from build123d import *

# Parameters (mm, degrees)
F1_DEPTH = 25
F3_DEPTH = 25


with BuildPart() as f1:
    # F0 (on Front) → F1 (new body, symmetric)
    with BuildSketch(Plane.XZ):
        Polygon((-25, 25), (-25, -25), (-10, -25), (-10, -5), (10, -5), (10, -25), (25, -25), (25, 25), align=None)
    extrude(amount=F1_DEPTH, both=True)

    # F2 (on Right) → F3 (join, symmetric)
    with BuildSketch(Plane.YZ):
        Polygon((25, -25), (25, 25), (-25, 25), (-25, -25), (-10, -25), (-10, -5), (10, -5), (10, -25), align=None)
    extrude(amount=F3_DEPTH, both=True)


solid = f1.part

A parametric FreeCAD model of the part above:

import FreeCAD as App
import Part
import Sketcher
Q = App.Units.Quantity


def add_polygon(sketch, points):
    """Adds a closed chain of lines whose ends are joined by coincident constraints."""
    first, n = sketch.GeometryCount, len(points)
    for a, b in zip(points, points[1:] + points[:1]):
        sketch.addGeometry(Part.LineSegment(App.Vector(*a, 0), App.Vector(*b, 0)), False)
    for i in range(n):
        sketch.addConstraint(Sketcher.Constraint("Coincident", first + i, 2, first + (i + 1) % n, 1))

doc = App.newDocument("Part")
body = doc.addObject("PartDesign::Body", "Body")

sketch1 = body.newObject("Sketcher::SketchObject", "Sketch")
sketch1.AttachmentSupport = (doc.getObject("XZ_Plane"), [""])
sketch1.MapMode = "FlatFace"
add_polygon(sketch1, [(-25, 25), (-25, -25), (-10, -25), (-10, -5), (10, -5), (10, -25), (25, -25), (25, 25)])
sketch1.addConstraint(Sketcher.Constraint("Vertical", 0))
sketch1.addConstraint(Sketcher.Constraint("Horizontal", 1))
sketch1.addConstraint(Sketcher.Constraint("Vertical", 2))
sketch1.addConstraint(Sketcher.Constraint("Horizontal", 3))
sketch1.addConstraint(Sketcher.Constraint("Vertical", 4))
sketch1.addConstraint(Sketcher.Constraint("Horizontal", 5))
sketch1.addConstraint(Sketcher.Constraint("Vertical", 6))
sketch1.addConstraint(Sketcher.Constraint("Horizontal", 7))
sketch1.addConstraint(Sketcher.Constraint("Symmetric", 0, 2, 6, 2, -1, 1))
sketch1.addConstraint(Sketcher.Constraint("Symmetric", 1, 2, 4, 2, -2))
sketch1.addConstraint(Sketcher.Constraint("Equal", 7, 0))
sketch1.addConstraint(Sketcher.Constraint("Equal", 3, 2))
sketch1.addConstraint(Sketcher.Constraint("DistanceX", 1, 1, 1, 2, Q("15 mm")))
sketch1.addConstraint(Sketcher.Constraint("DistanceX", 3, 1, 3, 2, Q("20 mm")))
pad1 = body.newObject("PartDesign::Pad", "Pad")
pad1.Profile = sketch1
pad1.Length = 50
pad1.Midplane = True

sketch2 = body.newObject("Sketcher::SketchObject", "Sketch001")
sketch2.AttachmentSupport = (doc.getObject("YZ_Plane"), [""])
sketch2.MapMode = "FlatFace"
add_polygon(sketch2, [(25, -25), (25, 25), (-25, 25), (-25, -25), (-10, -25), (-10, -5), (10, -5), (10, -25)])
sketch2.addConstraint(Sketcher.Constraint("Vertical", 0))
sketch2.addConstraint(Sketcher.Constraint("Horizontal", 1))
sketch2.addConstraint(Sketcher.Constraint("Vertical", 2))
sketch2.addConstraint(Sketcher.Constraint("Horizontal", 3))
sketch2.addConstraint(Sketcher.Constraint("Vertical", 4))
sketch2.addConstraint(Sketcher.Constraint("Horizontal", 5))
sketch2.addConstraint(Sketcher.Constraint("Vertical", 6))
sketch2.addConstraint(Sketcher.Constraint("Horizontal", 7))
sketch2.addConstraint(Sketcher.Constraint("Symmetric", 0, 2, 2, 2, -1, 1))
sketch2.addConstraint(Sketcher.Constraint("Symmetric", 3, 2, 6, 2, -2))
sketch2.addConstraint(Sketcher.Constraint("Equal", 1, 0))
sketch2.addConstraint(Sketcher.Constraint("Equal", 5, 4))
sketch2.addConstraint(Sketcher.Constraint("DistanceX", 1, 2, 1, 1, Q("50 mm")))
sketch2.addConstraint(Sketcher.Constraint("DistanceX", 3, 1, 3, 2, Q("15 mm")))
pad2 = body.newObject("PartDesign::Pad", "Pad001")
pad2.Profile = sketch2
pad2.Length = 50
pad2.Midplane = True

doc.recompute()
